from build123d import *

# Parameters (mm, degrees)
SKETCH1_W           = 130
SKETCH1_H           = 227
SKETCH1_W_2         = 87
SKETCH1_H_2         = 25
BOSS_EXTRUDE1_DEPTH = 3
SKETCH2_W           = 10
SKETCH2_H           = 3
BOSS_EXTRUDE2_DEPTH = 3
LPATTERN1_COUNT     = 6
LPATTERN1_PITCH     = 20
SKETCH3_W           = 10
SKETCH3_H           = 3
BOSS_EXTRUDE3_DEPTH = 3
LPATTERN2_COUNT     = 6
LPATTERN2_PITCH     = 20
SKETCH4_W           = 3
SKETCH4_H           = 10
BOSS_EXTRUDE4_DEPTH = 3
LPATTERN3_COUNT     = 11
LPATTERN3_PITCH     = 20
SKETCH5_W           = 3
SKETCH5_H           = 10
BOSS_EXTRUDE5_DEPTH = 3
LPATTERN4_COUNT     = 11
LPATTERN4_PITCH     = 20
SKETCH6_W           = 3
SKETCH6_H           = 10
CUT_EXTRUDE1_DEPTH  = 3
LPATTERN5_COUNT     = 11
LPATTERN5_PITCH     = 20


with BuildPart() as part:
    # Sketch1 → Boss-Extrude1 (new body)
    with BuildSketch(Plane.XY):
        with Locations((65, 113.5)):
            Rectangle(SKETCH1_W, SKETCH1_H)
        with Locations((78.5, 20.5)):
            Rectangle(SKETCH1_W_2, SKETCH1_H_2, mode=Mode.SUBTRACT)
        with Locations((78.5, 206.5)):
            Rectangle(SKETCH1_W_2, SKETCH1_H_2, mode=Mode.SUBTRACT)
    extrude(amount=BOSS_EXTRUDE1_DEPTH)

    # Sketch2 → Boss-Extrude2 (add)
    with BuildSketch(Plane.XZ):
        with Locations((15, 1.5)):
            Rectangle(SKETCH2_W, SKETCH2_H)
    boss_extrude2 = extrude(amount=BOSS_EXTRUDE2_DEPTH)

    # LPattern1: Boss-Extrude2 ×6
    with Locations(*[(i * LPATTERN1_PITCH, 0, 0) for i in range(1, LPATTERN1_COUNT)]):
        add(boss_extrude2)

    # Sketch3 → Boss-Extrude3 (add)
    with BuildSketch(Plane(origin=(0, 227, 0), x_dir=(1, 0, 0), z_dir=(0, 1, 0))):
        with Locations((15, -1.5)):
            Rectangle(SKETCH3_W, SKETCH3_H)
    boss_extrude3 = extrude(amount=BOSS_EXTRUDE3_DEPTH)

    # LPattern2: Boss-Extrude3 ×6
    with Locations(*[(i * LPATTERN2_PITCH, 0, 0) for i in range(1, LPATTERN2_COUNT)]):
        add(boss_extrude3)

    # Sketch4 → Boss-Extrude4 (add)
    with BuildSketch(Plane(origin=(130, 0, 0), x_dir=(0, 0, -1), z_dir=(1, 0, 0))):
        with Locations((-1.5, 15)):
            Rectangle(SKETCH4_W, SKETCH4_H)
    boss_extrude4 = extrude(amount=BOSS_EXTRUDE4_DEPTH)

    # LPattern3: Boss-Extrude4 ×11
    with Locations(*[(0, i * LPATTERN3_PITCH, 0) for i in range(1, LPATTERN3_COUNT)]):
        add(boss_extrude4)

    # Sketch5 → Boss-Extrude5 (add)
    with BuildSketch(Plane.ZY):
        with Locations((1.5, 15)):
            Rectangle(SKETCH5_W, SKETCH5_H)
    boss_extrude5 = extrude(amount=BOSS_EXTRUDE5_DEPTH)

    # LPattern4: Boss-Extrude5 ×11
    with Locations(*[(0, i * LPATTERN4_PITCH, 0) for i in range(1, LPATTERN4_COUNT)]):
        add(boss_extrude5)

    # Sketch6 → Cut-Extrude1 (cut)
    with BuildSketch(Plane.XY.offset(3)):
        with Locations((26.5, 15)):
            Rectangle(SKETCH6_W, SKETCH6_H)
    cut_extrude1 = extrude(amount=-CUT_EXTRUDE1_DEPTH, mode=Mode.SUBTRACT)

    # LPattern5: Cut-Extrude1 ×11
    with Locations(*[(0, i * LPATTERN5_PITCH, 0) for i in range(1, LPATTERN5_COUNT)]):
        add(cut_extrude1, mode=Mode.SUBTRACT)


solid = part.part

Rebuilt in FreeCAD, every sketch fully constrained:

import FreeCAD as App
import Part
import Sketcher
from FreeCAD import Vector

doc = App.newDocument("Part")
params = doc.addObject("Spreadsheet::Sheet", "Params")
for row, (alias, value) in enumerate([
    ("sketch1_width", "130 mm"),
    ("sketch1_width2", "87 mm"),
    ("sketch1_height", "227 mm"),
    ("sketch1_height2", "25 mm"),
    ("pad1_length", "3 mm"),
    ("sketch2_width", "10 mm"),
    ("sketch2_height", "3 mm"),
    ("pad2_length", "3 mm"),
    ("linearpattern_pitch", "20 mm"),
    ("sketch3_width", "10 mm"),
    ("sketch3_height", "3 mm"),
    ("pad3_length", "3 mm"),
    ("linearpattern2_pitch", "20 mm"),
    ("sketch4_width", "10 mm"),
    ("sketch4_height", "3 mm"),
    ("pad4_length", "3 mm"),
    ("linearpattern3_pitch", "20 mm"),
    ("sketch5_width", "10 mm"),
    ("sketch5_height", "3 mm"),
    ("pad5_length", "3 mm"),
    ("linearpattern4_pitch", "20 mm"),
    ("sketch6_width", "3 mm"),
    ("sketch6_height", "10 mm"),
    ("pocket1_length", "3 mm"),
    ("linearpattern5_pitch", "20 mm"),
], start=1):
    params.set(f"A{row}", alias)
    params.set(f"B{row}", "=" + value)
    params.setAlias(f"B{row}", alias)

body = doc.addObject("PartDesign::Body", "Body")

# Sketch on XY plane
sketch1 = body.newObject("Sketcher::SketchObject", "Sketch")
sketch1.AttachmentSupport = (doc.getObject("XY_Plane"), [""])
sketch1.MapMode = "FlatFace"
sketch1.addGeometry([
    Part.LineSegment(Vector(0, 227, 0), Vector(0, 0, 0)),  # 0
    Part.LineSegment(Vector(0, 0, 0), Vector(130, 0, 0)),  # 1
    Part.LineSegment(Vector(130, 0, 0), Vector(130, 227, 0)),  # 2
    Part.LineSegment(Vector(130, 227, 0), Vector(0, 227, 0)),  # 3
    Part.LineSegment(Vector(122, 8, 0), Vector(35, 8, 0)),  # 4
    Part.LineSegment(Vector(35, 8, 0), Vector(35, 33, 0)),  # 5
    Part.LineSegment(Vector(35, 33, 0), Vector(122, 33, 0)),  # 6
    Part.LineSegment(Vector(122, 33, 0), Vector(122, 8, 0)),  # 7
    Part.LineSegment(Vector(122, 194, 0), Vector(35, 194, 0)),  # 8
    Part.LineSegment(Vector(35, 194, 0), Vector(35, 219, 0)),  # 9
    Part.LineSegment(Vector(35, 219, 0), Vector(122, 219, 0)),  # 10
    Part.LineSegment(Vector(122, 219, 0), Vector(122, 194, 0)),  # 11
], False)
sketch1.addConstraint([
    Sketcher.Constraint("Coincident", 0, 2, 1, 1),
    Sketcher.Constraint("Coincident", 1, 2, 2, 1),
    Sketcher.Constraint("Coincident", 2, 2, 3, 1),
    Sketcher.Constraint("Coincident", 3, 2, 0, 1),
    Sketcher.Constraint("Coincident", 4, 2, 5, 1),
    Sketcher.Constraint("Coincident", 5, 2, 6, 1),
    Sketcher.Constraint("Coincident", 6, 2, 7, 1),
    Sketcher.Constraint("Coincident", 7, 2, 4, 1),
    Sketcher.Constraint("Coincident", 8, 2, 9, 1),
    Sketcher.Constraint("Coincident", 9, 2, 10, 1),
    Sketcher.Constraint("Coincident", 10, 2, 11, 1),
    Sketcher.Constraint("Coincident", 11, 2, 8, 1),
    Sketcher.Constraint("Vertical", 0),
    Sketcher.Constraint("Horizontal", 1),
    Sketcher.Constraint("Vertical", 2),
    Sketcher.Constraint("Horizontal", 3),
    Sketcher.Constraint("Horizontal", 4),
    Sketcher.Constraint("Vertical", 5),
    Sketcher.Constraint("Horizontal", 6),
    Sketcher.Constraint("Vertical", 7),
    Sketcher.Constraint("Horizontal", 8),
    Sketcher.Constraint("Vertical", 9),
    Sketcher.Constraint("Horizontal", 10),
    Sketcher.Constraint("Vertical", 11),
    Sketcher.Constraint("Coincident", 0, 2, -1, 1),
    Sketcher.Constraint("Vertical", 5, 2, 8, 2),
    Sketcher.Constraint("Vertical", 7, 2, 10, 2),
    Sketcher.Constraint("Equal", 7, 9),
    Sketcher.Constraint("DistanceX", 1, 1, 1, 2, 130.0),
    Sketcher.Constraint("DistanceX", 4, 2, 4, 1, 87.0),
    Sketcher.Constraint("DistanceY", 0, 2, 0, 1, 227.0),
    Sketcher.Constraint("DistanceY", 5, 1, 5, 2, 25.0),
    Sketcher.Constraint("DistanceX", -1, 1, 4, 2, 35.0),
    Sketcher.Constraint("DistanceY", -1, 1, 4, 2, 8.0),
    Sketcher.Constraint("DistanceY", -1, 1, 8, 2, 194.0),
])
sketch1.setExpression("Constraints[28]", "Params.sketch1_width")
sketch1.setExpression("Constraints[29]", "Params.sketch1_width2")
sketch1.setExpression("Constraints[30]", "Params.sketch1_height")
sketch1.setExpression("Constraints[31]", "Params.sketch1_height2")
pad1 = body.newObject("PartDesign::Pad", "Pad")
pad1.Profile = sketch1
pad1.setExpression("Length", "Params.pad1_length")

# Sketch on XZ plane
sketch2 = body.newObject("Sketcher::SketchObject", "Sketch001")
sketch2.AttachmentSupport = (doc.getObject("XZ_Plane"), [""])
sketch2.MapMode = "FlatFace"
sketch2.addGeometry([
    Part.LineSegment(Vector(10, 3, 0), Vector(10, 0, 0)),
    Part.LineSegment(Vector(10, 0, 0), Vector(20, 0, 0)),
    Part.LineSegment(Vector(20, 0, 0), Vector(20, 3, 0)),
    Part.LineSegment(Vector(20, 3, 0), Vector(10, 3, 0)),
], False)
sketch2.addConstraint([
    Sketcher.Constraint("Coincident", 0, 2, 1, 1),
    Sketcher.Constraint("Coincident", 1, 2, 2, 1),
    Sketcher.Constraint("Coincident", 2, 2, 3, 1),
    Sketcher.Constraint("Coincident", 3, 2, 0, 1),
    Sketcher.Constraint("Vertical", 0),
    Sketcher.Constraint("Horizontal", 1),
    Sketcher.Constraint("Vertical", 2),
    Sketcher.Constraint("Horizontal", 3),
    Sketcher.Constraint("PointOnObject", 0, 2, -1),
    Sketcher.Constraint("DistanceX", 1, 1, 1, 2, 10.0),
    Sketcher.Constraint("DistanceY", 0, 2, 0, 1, 3.0),
    Sketcher.Constraint("DistanceX", -1, 1, 0, 2, 10.0),
])
sketch2.setExpression("Constraints[9]", "Params.sketch2_width")
sketch2.setExpression("Constraints[10]", "Params.sketch2_height")
pad2 = body.newObject("PartDesign::Pad", "Pad001")
pad2.Profile = sketch2
pad2.setExpression("Length", "Params.pad2_length")
doc.recompute()

linearpattern = body.newObject("PartDesign::LinearPattern", "LinearPattern")
linearpattern.Originals = [pad2]
linearpattern.Direction = (doc.getObject("X_Axis"), [""])
linearpattern.Mode = "offset"
linearpattern.setExpression("Offset", "Params.linearpattern_pitch")
linearpattern.Occurrences = 6
body.Tip = linearpattern

# Sketch on XZ plane
sketch3 = body.newObject("Sketcher::SketchObject", "Sketch002")
sketch3.AttachmentSupport = (doc.getObject("XZ_Plane"), [""])
sketch3.MapMode = "FlatFace"
sketch3.AttachmentOffset = App.Placement(Vector(0, 0, -227), App.Rotation())
sketch3.addGeometry([
    Part.LineSegment(Vector(10, 0, 0), Vector(10, 3, 0)),
    Part.LineSegment(Vector(10, 3, 0), Vector(20, 3, 0)),
    Part.LineSegment(Vector(20, 3, 0), Vector(20, 0, 0)),
    Part.LineSegment(Vector(20, 0, 0), Vector(10, 0, 0)),
], False)
sketch3.addConstraint([
    Sketcher.Constraint("Coincident", 0, 2, 1, 1),
    Sketcher.Constraint("Coincident", 1, 2, 2, 1),
    Sketcher.Constraint("Coincident", 2, 2, 3, 1),
    Sketcher.Constraint("Coincident", 3, 2, 0, 1),
    Sketcher.Constraint("Vertical", 0),
    Sketcher.Constraint("Horizontal", 1),
    Sketcher.Constraint("Vertical", 2),
    Sketcher.Constraint("Horizontal", 3),
    Sketcher.Constraint("PointOnObject", 2, 2, -1),
    Sketcher.Constraint("DistanceX", 1, 1, 1, 2, 10.0),
    Sketcher.Constraint("DistanceY", 0, 1, 0, 2, 3.0),
    Sketcher.Constraint("DistanceX", -1, 1, 0, 2, 10.0),
])
sketch3.setExpression("Constraints[9]", "Params.sketch3_width")
sketch3.setExpression("Constraints[10]", "Params.sketch3_height")
pad3 = body.newObject("PartDesign::Pad", "Pad002")
pad3.Profile = sketch3
pad3.setExpression("Length", "Params.pad3_length")
pad3.Reversed = True
doc.recompute()

linearpattern2 = body.newObject("PartDesign::LinearPattern", "LinearPattern001")
linearpattern2.Originals = [pad3]
linearpattern2.Direction = (doc.getObject("X_Axis"), [""])
linearpattern2.Mode = "offset"
linearpattern2.setExpression("Offset", "Params.linearpattern2_pitch")
linearpattern2.Occurrences = 6
body.Tip = linearpattern2

# Sketch on YZ plane
sketch4 = body.newObject("Sketcher::SketchObject", "Sketch003")
sketch4.AttachmentSupport = (doc.getObject("YZ_Plane"), [""])
sketch4.MapMode = "FlatFace"
sketch4.AttachmentOffset = App.Placement(Vector(0, 0, 130), App.Rotation())
sketch4.addGeometry([
    Part.LineSegment(Vector(20, 3, 0), Vector(10, 3, 0)),
    Part.LineSegment(Vector(10, 3, 0), Vector(10, 0, 0)),
    Part.LineSegment(Vector(10, 0, 0), Vector(20, 0, 0)),
    Part.LineSegment(Vector(20, 0, 0), Vector(20, 3, 0)),
], False)
sketch4.addConstraint([
    Sketcher.Constraint("Coincident", 0, 2, 1, 1),
    Sketcher.Constraint("Coincident", 1, 2, 2, 1),
    Sketcher.Constraint("Coincident", 2, 2, 3, 1),
    Sketcher.Constraint("Coincident", 3, 2, 0, 1),
    Sketcher.Constraint("Horizontal", 0),
    Sketcher.Constraint("Vertical", 1),
    Sketcher.Constraint("Horizontal", 2),
    Sketcher.Constraint("Vertical", 3),
    Sketcher.Constraint("PointOnObject", 1, 2, -1),
    Sketcher.Constraint("DistanceX", 0, 2, 0, 1, 10.0),
    Sketcher.Constraint("DistanceY", 1, 2, 1, 1, 3.0),
    Sketcher.Constraint("DistanceX", -1, 1, 0, 2, 10.0),
])
sketch4.setExpression("Constraints[9]", "Params.sketch4_width")
sketch4.setExpression("Constraints[10]", "Params.sketch4_height")
pad4 = body.newObject("PartDesign::Pad", "Pad003")
pad4.Profile = sketch4
pad4.setExpression("Length", "Params.pad4_length")
doc.recompute()

linearpattern3 = body.newObject("PartDesign::LinearPattern", "LinearPattern002")
linearpattern3.Originals = [pad4]
linearpattern3.Direction = (doc.getObject("Y_Axis"), [""])
linearpattern3.Mode = "offset"
linearpattern3.setExpression("Offset", "Params.linearpattern3_pitch")
linearpattern3.Occurrences = 11
body.Tip = linearpattern3

# Sketch on YZ plane
sketch5 = body.newObject("Sketcher::SketchObject", "Sketch004")
sketch5.AttachmentSupport = (doc.getObject("YZ_Plane"), [""])
sketch5.MapMode = "FlatFace"
sketch5.addGeometry([
    Part.LineSegment(Vector(20, 0, 0), Vector(10, 0, 0)),
    Part.LineSegment(Vector(10, 0, 0), Vector(10, 3, 0)),
    Part.LineSegment(Vector(10, 3, 0), Vector(20, 3, 0)),
    Part.LineSegment(Vector(20, 3, 0), Vector(20, 0, 0)),
], False)
sketch5.addConstraint([
    Sketcher.Constraint("Coincident", 0, 2, 1, 1),
    Sketcher.Constraint("Coincident", 1, 2, 2, 1),
    Sketcher.Constraint("Coincident", 2, 2, 3, 1),
    Sketcher.Constraint("Coincident", 3, 2, 0, 1),
    Sketcher.Constraint("Horizontal", 0),
    Sketcher.Constraint("Vertical", 1),
    Sketcher.Constraint("Horizontal", 2),
    Sketcher.Constraint("Vertical", 3),
    Sketcher.Constraint("PointOnObject", 0, 2, -1),
    Sketcher.Constraint("DistanceX", 0, 2, 0, 1, 10.0),
    Sketcher.Constraint("DistanceY", 1, 1, 1, 2, 3.0),
    Sketcher.Constraint("DistanceX", -1, 1, 0, 2, 10.0),
])
sketch5.setExpression("Constraints[9]", "Params.sketch5_width")
sketch5.setExpression("Constraints[10]", "Params.sketch5_height")
pad5 = body.newObject("PartDesign::Pad", "Pad004")
pad5.Profile = sketch5
pad5.setExpression("Length", "Params.pad5_length")
pad5.Reversed = True
doc.recompute()

linearpattern4 = body.newObject("PartDesign::LinearPattern", "LinearPattern003")
linearpattern4.Originals = [pad5]
linearpattern4.Direction = (doc.getObject("Y_Axis"), [""])
linearpattern4.Mode = "offset"
linearpattern4.setExpression("Offset", "Params.linearpattern4_pitch")
linearpattern4.Occurrences = 11
body.Tip = linearpattern4

# Sketch on XY plane
sketch6 = body.newObject("Sketcher::SketchObject", "Sketch005")
sketch6.AttachmentSupport = (doc.getObject("XY_Plane"), [""])
sketch6.MapMode = "FlatFace"
sketch6.AttachmentOffset = App.Placement(Vector(0, 0, 3), App.Rotation())
sketch6.addGeometry([
    Part.LineSegment(Vector(25, 20, 0), Vector(25, 10, 0)),
    Part.LineSegment(Vector(25, 10, 0), Vector(28, 10, 0)),
    Part.LineSegment(Vector(28, 10, 0), Vector(28, 20, 0)),
    Part.LineSegment(Vector(28, 20, 0), Vector(25, 20, 0)),
], False)
sketch6.addConstraint([
    Sketcher.Constraint("Coincident", 0, 2, 1, 1),
    Sketcher.Constraint("Coincident", 1, 2, 2, 1),
    Sketcher.Constraint("Coincident", 2, 2, 3, 1),
    Sketcher.Constraint("Coincident", 3, 2, 0, 1),
    Sketcher.Constraint("Vertical", 0),
    Sketcher.Constraint("Horizontal", 1),
    Sketcher.Constraint("Vertical", 2),
    Sketcher.Constraint("Horizontal", 3),
    Sketcher.Constraint("DistanceX", 1, 1, 1, 2, 3.0),
    Sketcher.Constraint("DistanceY", 0, 2, 0, 1, 10.0),
    Sketcher.Constraint("DistanceX", -1, 1, 0, 2, 25.0),
    Sketcher.Constraint("DistanceY", -1, 1, 0, 2, 10.0),
])
sketch6.setExpression("Constraints[8]", "Params.sketch6_width")
sketch6.setExpression("Constraints[9]", "Params.sketch6_height")
pocket1 = body.newObject("PartDesign::Pocket", "Pocket")
pocket1.Profile = sketch6
pocket1.setExpression("Length", "Params.pocket1_length")
doc.recompute()

linearpattern5 = body.newObject("PartDesign::LinearPattern", "LinearPattern004")
linearpattern5.Originals = [pocket1]
linearpattern5.Direction = (doc.getObject("Y_Axis"), [""])
linearpattern5.Mode = "offset"
linearpattern5.setExpression("Offset", "Params.linearpattern5_pitch")
linearpattern5.Occurrences = 11
body.Tip = linearpattern5

doc.recompute()
